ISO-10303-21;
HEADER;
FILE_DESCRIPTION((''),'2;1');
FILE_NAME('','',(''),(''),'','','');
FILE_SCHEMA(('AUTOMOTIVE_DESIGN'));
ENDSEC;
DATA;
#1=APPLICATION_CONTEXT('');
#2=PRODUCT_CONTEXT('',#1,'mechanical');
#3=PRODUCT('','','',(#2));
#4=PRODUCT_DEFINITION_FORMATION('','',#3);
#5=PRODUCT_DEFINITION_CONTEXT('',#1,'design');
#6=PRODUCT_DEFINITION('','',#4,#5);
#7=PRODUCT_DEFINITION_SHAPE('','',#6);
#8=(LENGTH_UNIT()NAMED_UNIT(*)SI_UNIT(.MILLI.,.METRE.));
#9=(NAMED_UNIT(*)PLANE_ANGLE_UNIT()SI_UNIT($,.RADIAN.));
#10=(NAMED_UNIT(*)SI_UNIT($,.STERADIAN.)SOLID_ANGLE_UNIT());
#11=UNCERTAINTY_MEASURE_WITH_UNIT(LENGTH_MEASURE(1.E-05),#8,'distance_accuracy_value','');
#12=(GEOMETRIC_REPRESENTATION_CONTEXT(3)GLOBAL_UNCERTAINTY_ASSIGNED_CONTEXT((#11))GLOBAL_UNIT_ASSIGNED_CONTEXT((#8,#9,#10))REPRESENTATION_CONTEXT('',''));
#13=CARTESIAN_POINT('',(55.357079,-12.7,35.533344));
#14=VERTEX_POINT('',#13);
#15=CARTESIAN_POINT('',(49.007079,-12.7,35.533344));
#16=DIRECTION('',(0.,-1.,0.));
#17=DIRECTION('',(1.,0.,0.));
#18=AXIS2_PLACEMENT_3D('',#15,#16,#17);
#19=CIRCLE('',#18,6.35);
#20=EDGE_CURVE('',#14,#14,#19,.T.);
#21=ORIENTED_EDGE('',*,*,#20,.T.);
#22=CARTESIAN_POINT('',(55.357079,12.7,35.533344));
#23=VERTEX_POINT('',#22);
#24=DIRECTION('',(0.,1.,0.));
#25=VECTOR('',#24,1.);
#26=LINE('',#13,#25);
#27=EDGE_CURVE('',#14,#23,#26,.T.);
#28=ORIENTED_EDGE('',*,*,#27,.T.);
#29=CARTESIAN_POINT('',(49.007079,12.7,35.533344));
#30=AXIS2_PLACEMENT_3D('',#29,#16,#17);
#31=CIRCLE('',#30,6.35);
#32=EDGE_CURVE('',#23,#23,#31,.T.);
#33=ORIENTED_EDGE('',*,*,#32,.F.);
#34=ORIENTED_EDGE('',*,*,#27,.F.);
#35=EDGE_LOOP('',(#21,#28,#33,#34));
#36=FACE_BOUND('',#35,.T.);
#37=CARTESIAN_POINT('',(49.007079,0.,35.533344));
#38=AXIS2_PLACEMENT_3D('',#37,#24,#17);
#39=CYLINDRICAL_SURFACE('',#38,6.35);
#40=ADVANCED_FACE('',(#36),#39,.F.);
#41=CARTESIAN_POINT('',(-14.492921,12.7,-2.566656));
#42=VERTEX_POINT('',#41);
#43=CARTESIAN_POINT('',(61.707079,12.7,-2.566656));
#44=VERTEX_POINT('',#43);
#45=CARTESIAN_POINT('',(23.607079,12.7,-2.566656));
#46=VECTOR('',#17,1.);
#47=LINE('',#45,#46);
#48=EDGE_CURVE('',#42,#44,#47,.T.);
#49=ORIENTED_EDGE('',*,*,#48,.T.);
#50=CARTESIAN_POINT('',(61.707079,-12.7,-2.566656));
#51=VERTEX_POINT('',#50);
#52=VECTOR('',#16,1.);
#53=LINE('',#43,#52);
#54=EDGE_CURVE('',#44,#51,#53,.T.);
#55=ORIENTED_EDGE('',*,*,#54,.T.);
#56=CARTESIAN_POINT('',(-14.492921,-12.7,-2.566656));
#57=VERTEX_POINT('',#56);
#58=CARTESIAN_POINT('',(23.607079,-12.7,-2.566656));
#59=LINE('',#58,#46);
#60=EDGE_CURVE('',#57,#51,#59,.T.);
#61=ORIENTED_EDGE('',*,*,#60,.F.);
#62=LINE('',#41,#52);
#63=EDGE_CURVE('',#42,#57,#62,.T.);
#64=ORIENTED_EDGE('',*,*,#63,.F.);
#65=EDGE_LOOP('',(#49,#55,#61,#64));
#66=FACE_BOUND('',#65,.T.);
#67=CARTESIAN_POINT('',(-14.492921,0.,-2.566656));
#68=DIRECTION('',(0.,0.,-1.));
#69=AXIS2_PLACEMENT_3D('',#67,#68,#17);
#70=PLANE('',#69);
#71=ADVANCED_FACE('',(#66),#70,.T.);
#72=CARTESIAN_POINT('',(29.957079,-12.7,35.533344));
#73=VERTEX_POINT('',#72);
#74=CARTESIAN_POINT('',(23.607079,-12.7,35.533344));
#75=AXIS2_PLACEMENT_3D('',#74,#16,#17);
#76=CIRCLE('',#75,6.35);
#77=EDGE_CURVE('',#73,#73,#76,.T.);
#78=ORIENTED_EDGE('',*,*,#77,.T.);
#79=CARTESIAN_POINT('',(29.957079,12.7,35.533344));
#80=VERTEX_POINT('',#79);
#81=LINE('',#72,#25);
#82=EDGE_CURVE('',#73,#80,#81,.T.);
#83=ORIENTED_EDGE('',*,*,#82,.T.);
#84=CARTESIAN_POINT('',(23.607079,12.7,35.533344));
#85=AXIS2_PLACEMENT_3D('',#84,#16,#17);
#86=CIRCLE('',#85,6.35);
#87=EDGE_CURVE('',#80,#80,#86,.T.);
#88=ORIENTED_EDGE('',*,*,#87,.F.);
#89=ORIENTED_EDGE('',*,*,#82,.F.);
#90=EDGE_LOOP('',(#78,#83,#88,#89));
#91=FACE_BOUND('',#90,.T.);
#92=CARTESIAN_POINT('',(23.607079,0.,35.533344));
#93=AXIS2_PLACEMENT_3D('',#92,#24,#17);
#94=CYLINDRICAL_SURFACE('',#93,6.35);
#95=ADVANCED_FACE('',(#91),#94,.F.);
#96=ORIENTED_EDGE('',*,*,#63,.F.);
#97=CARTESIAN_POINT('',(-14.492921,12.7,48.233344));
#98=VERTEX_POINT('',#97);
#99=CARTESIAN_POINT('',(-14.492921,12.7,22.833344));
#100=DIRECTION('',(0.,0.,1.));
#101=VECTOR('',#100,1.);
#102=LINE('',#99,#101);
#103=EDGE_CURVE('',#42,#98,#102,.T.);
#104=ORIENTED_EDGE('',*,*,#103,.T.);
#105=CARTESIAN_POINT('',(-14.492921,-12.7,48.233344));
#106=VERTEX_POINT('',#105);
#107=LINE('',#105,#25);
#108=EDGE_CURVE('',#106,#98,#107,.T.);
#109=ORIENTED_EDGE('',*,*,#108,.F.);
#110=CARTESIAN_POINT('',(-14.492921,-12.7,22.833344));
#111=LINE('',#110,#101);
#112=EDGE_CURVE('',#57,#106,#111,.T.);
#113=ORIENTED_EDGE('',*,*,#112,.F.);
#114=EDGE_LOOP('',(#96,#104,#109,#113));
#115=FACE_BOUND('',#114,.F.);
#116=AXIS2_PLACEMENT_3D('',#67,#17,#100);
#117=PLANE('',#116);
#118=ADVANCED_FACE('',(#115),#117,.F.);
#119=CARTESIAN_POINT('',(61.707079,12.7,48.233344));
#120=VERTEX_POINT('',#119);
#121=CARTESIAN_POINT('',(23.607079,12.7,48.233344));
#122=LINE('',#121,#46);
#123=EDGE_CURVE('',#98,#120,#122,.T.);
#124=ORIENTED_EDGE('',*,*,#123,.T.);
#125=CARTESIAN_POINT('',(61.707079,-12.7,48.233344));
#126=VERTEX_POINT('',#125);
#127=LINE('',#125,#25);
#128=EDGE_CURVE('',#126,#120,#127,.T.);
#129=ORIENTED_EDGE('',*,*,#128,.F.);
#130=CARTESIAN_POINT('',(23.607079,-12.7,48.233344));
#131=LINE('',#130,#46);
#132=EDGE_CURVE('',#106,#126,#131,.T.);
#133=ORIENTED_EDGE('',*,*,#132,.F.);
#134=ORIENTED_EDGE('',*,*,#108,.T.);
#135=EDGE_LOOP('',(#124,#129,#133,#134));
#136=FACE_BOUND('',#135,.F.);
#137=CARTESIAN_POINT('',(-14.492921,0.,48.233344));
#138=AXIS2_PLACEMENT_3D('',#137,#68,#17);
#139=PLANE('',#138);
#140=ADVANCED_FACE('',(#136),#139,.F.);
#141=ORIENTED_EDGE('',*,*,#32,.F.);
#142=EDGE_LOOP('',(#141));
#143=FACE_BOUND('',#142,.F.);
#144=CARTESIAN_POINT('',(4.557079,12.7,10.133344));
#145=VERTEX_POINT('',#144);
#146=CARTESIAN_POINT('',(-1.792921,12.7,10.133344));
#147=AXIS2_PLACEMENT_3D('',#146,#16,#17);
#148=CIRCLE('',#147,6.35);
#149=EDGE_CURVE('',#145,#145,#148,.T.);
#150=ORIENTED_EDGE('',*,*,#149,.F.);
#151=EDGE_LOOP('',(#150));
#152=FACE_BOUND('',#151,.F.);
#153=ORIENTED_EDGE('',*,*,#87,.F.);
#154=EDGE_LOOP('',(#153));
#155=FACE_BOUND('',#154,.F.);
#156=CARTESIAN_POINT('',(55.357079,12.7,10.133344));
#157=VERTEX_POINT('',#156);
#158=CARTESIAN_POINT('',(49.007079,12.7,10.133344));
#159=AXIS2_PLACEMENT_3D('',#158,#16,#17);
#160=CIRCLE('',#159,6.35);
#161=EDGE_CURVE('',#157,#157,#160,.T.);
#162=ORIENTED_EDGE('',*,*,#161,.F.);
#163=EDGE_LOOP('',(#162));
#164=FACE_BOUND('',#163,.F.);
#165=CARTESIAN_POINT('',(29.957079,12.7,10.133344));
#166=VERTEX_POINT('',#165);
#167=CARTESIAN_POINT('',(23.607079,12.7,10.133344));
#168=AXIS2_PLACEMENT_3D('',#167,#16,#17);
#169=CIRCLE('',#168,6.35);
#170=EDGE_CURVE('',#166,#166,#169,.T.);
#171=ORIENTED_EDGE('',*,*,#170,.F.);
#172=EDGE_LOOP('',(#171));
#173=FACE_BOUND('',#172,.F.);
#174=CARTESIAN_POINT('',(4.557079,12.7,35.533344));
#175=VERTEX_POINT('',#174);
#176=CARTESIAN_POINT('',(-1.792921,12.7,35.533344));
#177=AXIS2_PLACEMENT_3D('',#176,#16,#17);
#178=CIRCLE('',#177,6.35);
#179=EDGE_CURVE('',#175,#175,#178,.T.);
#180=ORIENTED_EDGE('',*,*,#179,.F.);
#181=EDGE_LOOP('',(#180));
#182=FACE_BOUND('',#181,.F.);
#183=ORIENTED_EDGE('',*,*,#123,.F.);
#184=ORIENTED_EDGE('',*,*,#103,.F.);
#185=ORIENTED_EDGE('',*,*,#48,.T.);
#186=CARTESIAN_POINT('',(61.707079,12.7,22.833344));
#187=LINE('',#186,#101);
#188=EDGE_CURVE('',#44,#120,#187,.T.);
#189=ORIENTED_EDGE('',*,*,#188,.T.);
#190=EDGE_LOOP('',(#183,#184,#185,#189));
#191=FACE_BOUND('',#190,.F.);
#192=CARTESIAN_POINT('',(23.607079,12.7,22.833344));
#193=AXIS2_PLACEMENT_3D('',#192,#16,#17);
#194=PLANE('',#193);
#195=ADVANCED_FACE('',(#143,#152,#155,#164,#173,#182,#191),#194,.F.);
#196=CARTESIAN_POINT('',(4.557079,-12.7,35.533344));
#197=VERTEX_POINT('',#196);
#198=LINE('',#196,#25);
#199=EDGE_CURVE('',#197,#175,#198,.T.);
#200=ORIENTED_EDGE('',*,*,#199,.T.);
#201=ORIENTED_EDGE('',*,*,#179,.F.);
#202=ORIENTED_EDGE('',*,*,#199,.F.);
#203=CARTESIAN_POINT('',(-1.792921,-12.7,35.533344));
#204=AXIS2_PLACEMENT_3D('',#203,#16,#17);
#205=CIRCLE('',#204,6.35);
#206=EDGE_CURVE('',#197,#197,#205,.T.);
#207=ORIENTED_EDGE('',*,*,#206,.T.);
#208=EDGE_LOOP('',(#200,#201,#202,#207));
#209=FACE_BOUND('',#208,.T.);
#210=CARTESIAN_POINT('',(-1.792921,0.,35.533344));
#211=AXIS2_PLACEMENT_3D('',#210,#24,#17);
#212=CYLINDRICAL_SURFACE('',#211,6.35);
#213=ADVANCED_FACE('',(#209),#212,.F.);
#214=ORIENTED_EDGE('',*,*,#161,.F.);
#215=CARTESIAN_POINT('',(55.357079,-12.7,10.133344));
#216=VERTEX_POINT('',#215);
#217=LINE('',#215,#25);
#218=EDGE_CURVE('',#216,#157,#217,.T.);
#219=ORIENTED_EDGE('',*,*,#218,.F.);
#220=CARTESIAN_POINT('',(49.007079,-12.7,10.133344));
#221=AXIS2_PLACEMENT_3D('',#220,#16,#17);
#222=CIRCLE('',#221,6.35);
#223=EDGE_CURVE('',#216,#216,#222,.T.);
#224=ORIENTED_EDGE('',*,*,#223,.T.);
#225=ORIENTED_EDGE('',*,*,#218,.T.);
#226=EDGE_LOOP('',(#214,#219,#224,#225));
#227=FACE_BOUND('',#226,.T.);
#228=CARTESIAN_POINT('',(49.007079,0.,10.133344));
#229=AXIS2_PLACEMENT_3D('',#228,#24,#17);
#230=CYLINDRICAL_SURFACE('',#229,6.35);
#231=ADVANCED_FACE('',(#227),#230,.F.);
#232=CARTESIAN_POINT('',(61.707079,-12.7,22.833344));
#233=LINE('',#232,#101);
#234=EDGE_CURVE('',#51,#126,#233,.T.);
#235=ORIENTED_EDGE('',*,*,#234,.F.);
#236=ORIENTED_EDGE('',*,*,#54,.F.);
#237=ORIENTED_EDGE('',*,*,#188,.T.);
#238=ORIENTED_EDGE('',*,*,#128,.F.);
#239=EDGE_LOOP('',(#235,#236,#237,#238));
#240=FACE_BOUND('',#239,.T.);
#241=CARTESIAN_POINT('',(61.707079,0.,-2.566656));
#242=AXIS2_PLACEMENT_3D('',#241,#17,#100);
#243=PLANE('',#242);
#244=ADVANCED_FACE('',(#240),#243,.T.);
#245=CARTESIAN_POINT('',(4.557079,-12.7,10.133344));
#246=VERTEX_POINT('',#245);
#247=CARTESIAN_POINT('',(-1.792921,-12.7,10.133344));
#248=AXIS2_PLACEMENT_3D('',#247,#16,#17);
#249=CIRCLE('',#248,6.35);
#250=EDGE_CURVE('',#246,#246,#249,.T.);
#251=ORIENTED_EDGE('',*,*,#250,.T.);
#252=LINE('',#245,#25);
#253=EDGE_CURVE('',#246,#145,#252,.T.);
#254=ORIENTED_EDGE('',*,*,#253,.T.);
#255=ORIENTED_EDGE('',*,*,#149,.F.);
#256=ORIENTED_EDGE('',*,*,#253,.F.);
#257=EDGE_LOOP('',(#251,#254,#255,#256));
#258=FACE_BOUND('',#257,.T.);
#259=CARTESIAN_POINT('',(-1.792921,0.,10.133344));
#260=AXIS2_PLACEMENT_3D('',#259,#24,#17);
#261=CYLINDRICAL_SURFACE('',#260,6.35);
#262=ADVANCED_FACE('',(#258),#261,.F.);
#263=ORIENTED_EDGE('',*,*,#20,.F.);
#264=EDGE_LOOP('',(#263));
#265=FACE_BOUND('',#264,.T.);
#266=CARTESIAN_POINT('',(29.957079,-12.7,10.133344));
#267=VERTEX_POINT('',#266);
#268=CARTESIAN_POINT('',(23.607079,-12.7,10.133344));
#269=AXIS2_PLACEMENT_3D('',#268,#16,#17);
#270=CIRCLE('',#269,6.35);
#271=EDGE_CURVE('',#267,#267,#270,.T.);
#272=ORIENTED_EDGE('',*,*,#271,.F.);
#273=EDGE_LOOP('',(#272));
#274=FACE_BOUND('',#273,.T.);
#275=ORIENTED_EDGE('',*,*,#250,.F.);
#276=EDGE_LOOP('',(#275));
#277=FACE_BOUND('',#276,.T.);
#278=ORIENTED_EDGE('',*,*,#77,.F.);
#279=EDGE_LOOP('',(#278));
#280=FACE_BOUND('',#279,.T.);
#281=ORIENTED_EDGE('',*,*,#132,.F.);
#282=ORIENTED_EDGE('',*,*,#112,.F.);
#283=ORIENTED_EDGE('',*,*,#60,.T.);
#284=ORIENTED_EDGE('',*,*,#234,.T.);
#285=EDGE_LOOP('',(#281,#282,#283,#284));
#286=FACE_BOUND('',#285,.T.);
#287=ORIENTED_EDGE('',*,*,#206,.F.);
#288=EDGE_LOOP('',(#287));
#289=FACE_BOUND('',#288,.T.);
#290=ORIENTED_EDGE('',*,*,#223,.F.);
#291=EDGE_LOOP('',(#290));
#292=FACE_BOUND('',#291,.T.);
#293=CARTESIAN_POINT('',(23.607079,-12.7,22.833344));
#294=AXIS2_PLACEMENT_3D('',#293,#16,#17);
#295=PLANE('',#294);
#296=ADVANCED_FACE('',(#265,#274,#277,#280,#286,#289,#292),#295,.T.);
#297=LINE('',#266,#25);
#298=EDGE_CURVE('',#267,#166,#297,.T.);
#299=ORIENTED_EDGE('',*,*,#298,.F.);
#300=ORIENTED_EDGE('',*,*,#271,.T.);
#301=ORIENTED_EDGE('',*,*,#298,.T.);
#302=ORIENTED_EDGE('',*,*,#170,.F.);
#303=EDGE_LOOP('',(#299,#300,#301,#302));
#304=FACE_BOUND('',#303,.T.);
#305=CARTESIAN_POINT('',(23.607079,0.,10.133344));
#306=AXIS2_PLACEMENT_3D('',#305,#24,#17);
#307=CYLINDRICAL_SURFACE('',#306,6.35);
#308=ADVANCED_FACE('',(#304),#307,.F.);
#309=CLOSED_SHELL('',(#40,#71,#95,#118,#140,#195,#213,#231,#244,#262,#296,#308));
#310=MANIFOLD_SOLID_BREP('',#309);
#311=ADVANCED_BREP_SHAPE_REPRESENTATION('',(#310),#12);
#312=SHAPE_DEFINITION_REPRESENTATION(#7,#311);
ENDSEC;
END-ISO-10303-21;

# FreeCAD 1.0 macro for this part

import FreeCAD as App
import Part
import Sketcher

V = App.Vector
Q = App.Units.Quantity


def add_polygon(sketch, points):
    """Adds a closed chain of lines whose ends are joined by coincident constraints."""
    first, n = sketch.GeometryCount, len(points)
    for a, b in zip(points, points[1:] + points[:1]):
        sketch.addGeometry(Part.LineSegment(App.Vector(*a, 0), App.Vector(*b, 0)), False)
    for i in range(n):
        sketch.addConstraint(Sketcher.Constraint("Coincident", first + i, 2, first + (i + 1) % n, 1))

doc = App.newDocument("Part")
params = doc.addObject("Spreadsheet::Sheet", "Params")
for row, (alias, value) in enumerate([
    ("sketch1_diameter", "0.5 in"),
    ("sketch1_width", "3 in"),
    ("sketch1_height", "2 in"),
    ("pad1_length", "1 in"),
], start=1):
    params.set(f"A{row}", alias)
    params.set(f"B{row}", "=" + value)
    params.setAlias(f"B{row}", alias)

body = doc.addObject("PartDesign::Body", "Body")

sketch1 = body.newObject("Sketcher::SketchObject", "Sketch")
sketch1.AttachmentSupport = (doc.getObject("XZ_Plane"), [""])
sketch1.MapMode = "FlatFace"
add_polygon(sketch1, [(-14, 48), (-14, -3), (62, -3), (62, 48)])
sketch1.addGeometry(Part.Circle(V(-2, 10, 0), V(0, 0, 1), 6), False)
sketch1.addGeometry(Part.Circle(V(24, 10, 0), V(0, 0, 1), 6), False)
sketch1.addGeometry(Part.Circle(V(49, 10, 0), V(0, 0, 1), 6), False)
sketch1.addGeometry(Part.Circle(V(-2, 36, 0), V(0, 0, 1), 6), False)
sketch1.addGeometry(Part.Circle(V(24, 36, 0), V(0, 0, 1), 6), False)
sketch1.addGeometry(Part.Circle(V(49, 36, 0), V(0, 0, 1), 6), False)
sketch1.addConstraint([
    Sketcher.Constraint("Vertical", 0),
    Sketcher.Constraint("Horizontal", 1),
    Sketcher.Constraint("Vertical", 2),
    Sketcher.Constraint("Horizontal", 3),
    Sketcher.Constraint("Equal", 4, 5),
    Sketcher.Constraint("Equal", 5, 6),
    Sketcher.Constraint("Equal", 6, 7),
    Sketcher.Constraint("Equal", 7, 8),
    Sketcher.Constraint("Equal", 8, 9),
    Sketcher.Constraint("Horizontal", 4, 3, 5, 3),
    Sketcher.Constraint("Horizontal", 5, 3, 6, 3),
    Sketcher.Constraint("Horizontal", 7, 3, 8, 3),
    Sketcher.Constraint("Horizontal", 8, 3, 9, 3),
    Sketcher.Constraint("Vertical", 4, 3, 7, 3),
    Sketcher.Constraint("Vertical", 5, 3, 8, 3),
    Sketcher.Constraint("Vertical", 6, 3, 9, 3),
    Sketcher.Constraint("Diameter", 4, Q("0.5 in")),
    Sketcher.Constraint("DistanceX", 1, 1, 1, 2, Q("3 in")),
    Sketcher.Constraint("DistanceY", 0, 2, 0, 1, Q("2 in")),
    Sketcher.Constraint("DistanceX", 4, 3, 5, 3, Q("1 in")),
    Sketcher.Constraint("DistanceX", 5, 3, 6, 3, Q("1 in")),
    Sketcher.Constraint("DistanceY", 4, 3, 7, 3, Q("1 in")),
    Sketcher.Constraint("DistanceX", 0, 2, 4, 3, Q("0.5 in")),
    Sketcher.Constraint("DistanceY", 0, 2, 4, 3, Q("0.5 in")),
    Sketcher.Constraint("DistanceX", 4, 3, -1, 1, Q("1.792921 mm")),
    Sketcher.Constraint("DistanceY", -1, 1, 4, 3, Q("10.133344 mm")),
])
sketch1.setExpression("Constraints[20]", "Params.sketch1_diameter")
sketch1.setExpression("Constraints[21]", "Params.sketch1_width")
sketch1.setExpression("Constraints[22]", "Params.sketch1_height")
pad1 = body.newObject("PartDesign::Pad", "Pad")
pad1.Profile = sketch1
pad1.setExpression("Length", "Params.pad1_length")
pad1.Midplane = True

doc.recompute()
